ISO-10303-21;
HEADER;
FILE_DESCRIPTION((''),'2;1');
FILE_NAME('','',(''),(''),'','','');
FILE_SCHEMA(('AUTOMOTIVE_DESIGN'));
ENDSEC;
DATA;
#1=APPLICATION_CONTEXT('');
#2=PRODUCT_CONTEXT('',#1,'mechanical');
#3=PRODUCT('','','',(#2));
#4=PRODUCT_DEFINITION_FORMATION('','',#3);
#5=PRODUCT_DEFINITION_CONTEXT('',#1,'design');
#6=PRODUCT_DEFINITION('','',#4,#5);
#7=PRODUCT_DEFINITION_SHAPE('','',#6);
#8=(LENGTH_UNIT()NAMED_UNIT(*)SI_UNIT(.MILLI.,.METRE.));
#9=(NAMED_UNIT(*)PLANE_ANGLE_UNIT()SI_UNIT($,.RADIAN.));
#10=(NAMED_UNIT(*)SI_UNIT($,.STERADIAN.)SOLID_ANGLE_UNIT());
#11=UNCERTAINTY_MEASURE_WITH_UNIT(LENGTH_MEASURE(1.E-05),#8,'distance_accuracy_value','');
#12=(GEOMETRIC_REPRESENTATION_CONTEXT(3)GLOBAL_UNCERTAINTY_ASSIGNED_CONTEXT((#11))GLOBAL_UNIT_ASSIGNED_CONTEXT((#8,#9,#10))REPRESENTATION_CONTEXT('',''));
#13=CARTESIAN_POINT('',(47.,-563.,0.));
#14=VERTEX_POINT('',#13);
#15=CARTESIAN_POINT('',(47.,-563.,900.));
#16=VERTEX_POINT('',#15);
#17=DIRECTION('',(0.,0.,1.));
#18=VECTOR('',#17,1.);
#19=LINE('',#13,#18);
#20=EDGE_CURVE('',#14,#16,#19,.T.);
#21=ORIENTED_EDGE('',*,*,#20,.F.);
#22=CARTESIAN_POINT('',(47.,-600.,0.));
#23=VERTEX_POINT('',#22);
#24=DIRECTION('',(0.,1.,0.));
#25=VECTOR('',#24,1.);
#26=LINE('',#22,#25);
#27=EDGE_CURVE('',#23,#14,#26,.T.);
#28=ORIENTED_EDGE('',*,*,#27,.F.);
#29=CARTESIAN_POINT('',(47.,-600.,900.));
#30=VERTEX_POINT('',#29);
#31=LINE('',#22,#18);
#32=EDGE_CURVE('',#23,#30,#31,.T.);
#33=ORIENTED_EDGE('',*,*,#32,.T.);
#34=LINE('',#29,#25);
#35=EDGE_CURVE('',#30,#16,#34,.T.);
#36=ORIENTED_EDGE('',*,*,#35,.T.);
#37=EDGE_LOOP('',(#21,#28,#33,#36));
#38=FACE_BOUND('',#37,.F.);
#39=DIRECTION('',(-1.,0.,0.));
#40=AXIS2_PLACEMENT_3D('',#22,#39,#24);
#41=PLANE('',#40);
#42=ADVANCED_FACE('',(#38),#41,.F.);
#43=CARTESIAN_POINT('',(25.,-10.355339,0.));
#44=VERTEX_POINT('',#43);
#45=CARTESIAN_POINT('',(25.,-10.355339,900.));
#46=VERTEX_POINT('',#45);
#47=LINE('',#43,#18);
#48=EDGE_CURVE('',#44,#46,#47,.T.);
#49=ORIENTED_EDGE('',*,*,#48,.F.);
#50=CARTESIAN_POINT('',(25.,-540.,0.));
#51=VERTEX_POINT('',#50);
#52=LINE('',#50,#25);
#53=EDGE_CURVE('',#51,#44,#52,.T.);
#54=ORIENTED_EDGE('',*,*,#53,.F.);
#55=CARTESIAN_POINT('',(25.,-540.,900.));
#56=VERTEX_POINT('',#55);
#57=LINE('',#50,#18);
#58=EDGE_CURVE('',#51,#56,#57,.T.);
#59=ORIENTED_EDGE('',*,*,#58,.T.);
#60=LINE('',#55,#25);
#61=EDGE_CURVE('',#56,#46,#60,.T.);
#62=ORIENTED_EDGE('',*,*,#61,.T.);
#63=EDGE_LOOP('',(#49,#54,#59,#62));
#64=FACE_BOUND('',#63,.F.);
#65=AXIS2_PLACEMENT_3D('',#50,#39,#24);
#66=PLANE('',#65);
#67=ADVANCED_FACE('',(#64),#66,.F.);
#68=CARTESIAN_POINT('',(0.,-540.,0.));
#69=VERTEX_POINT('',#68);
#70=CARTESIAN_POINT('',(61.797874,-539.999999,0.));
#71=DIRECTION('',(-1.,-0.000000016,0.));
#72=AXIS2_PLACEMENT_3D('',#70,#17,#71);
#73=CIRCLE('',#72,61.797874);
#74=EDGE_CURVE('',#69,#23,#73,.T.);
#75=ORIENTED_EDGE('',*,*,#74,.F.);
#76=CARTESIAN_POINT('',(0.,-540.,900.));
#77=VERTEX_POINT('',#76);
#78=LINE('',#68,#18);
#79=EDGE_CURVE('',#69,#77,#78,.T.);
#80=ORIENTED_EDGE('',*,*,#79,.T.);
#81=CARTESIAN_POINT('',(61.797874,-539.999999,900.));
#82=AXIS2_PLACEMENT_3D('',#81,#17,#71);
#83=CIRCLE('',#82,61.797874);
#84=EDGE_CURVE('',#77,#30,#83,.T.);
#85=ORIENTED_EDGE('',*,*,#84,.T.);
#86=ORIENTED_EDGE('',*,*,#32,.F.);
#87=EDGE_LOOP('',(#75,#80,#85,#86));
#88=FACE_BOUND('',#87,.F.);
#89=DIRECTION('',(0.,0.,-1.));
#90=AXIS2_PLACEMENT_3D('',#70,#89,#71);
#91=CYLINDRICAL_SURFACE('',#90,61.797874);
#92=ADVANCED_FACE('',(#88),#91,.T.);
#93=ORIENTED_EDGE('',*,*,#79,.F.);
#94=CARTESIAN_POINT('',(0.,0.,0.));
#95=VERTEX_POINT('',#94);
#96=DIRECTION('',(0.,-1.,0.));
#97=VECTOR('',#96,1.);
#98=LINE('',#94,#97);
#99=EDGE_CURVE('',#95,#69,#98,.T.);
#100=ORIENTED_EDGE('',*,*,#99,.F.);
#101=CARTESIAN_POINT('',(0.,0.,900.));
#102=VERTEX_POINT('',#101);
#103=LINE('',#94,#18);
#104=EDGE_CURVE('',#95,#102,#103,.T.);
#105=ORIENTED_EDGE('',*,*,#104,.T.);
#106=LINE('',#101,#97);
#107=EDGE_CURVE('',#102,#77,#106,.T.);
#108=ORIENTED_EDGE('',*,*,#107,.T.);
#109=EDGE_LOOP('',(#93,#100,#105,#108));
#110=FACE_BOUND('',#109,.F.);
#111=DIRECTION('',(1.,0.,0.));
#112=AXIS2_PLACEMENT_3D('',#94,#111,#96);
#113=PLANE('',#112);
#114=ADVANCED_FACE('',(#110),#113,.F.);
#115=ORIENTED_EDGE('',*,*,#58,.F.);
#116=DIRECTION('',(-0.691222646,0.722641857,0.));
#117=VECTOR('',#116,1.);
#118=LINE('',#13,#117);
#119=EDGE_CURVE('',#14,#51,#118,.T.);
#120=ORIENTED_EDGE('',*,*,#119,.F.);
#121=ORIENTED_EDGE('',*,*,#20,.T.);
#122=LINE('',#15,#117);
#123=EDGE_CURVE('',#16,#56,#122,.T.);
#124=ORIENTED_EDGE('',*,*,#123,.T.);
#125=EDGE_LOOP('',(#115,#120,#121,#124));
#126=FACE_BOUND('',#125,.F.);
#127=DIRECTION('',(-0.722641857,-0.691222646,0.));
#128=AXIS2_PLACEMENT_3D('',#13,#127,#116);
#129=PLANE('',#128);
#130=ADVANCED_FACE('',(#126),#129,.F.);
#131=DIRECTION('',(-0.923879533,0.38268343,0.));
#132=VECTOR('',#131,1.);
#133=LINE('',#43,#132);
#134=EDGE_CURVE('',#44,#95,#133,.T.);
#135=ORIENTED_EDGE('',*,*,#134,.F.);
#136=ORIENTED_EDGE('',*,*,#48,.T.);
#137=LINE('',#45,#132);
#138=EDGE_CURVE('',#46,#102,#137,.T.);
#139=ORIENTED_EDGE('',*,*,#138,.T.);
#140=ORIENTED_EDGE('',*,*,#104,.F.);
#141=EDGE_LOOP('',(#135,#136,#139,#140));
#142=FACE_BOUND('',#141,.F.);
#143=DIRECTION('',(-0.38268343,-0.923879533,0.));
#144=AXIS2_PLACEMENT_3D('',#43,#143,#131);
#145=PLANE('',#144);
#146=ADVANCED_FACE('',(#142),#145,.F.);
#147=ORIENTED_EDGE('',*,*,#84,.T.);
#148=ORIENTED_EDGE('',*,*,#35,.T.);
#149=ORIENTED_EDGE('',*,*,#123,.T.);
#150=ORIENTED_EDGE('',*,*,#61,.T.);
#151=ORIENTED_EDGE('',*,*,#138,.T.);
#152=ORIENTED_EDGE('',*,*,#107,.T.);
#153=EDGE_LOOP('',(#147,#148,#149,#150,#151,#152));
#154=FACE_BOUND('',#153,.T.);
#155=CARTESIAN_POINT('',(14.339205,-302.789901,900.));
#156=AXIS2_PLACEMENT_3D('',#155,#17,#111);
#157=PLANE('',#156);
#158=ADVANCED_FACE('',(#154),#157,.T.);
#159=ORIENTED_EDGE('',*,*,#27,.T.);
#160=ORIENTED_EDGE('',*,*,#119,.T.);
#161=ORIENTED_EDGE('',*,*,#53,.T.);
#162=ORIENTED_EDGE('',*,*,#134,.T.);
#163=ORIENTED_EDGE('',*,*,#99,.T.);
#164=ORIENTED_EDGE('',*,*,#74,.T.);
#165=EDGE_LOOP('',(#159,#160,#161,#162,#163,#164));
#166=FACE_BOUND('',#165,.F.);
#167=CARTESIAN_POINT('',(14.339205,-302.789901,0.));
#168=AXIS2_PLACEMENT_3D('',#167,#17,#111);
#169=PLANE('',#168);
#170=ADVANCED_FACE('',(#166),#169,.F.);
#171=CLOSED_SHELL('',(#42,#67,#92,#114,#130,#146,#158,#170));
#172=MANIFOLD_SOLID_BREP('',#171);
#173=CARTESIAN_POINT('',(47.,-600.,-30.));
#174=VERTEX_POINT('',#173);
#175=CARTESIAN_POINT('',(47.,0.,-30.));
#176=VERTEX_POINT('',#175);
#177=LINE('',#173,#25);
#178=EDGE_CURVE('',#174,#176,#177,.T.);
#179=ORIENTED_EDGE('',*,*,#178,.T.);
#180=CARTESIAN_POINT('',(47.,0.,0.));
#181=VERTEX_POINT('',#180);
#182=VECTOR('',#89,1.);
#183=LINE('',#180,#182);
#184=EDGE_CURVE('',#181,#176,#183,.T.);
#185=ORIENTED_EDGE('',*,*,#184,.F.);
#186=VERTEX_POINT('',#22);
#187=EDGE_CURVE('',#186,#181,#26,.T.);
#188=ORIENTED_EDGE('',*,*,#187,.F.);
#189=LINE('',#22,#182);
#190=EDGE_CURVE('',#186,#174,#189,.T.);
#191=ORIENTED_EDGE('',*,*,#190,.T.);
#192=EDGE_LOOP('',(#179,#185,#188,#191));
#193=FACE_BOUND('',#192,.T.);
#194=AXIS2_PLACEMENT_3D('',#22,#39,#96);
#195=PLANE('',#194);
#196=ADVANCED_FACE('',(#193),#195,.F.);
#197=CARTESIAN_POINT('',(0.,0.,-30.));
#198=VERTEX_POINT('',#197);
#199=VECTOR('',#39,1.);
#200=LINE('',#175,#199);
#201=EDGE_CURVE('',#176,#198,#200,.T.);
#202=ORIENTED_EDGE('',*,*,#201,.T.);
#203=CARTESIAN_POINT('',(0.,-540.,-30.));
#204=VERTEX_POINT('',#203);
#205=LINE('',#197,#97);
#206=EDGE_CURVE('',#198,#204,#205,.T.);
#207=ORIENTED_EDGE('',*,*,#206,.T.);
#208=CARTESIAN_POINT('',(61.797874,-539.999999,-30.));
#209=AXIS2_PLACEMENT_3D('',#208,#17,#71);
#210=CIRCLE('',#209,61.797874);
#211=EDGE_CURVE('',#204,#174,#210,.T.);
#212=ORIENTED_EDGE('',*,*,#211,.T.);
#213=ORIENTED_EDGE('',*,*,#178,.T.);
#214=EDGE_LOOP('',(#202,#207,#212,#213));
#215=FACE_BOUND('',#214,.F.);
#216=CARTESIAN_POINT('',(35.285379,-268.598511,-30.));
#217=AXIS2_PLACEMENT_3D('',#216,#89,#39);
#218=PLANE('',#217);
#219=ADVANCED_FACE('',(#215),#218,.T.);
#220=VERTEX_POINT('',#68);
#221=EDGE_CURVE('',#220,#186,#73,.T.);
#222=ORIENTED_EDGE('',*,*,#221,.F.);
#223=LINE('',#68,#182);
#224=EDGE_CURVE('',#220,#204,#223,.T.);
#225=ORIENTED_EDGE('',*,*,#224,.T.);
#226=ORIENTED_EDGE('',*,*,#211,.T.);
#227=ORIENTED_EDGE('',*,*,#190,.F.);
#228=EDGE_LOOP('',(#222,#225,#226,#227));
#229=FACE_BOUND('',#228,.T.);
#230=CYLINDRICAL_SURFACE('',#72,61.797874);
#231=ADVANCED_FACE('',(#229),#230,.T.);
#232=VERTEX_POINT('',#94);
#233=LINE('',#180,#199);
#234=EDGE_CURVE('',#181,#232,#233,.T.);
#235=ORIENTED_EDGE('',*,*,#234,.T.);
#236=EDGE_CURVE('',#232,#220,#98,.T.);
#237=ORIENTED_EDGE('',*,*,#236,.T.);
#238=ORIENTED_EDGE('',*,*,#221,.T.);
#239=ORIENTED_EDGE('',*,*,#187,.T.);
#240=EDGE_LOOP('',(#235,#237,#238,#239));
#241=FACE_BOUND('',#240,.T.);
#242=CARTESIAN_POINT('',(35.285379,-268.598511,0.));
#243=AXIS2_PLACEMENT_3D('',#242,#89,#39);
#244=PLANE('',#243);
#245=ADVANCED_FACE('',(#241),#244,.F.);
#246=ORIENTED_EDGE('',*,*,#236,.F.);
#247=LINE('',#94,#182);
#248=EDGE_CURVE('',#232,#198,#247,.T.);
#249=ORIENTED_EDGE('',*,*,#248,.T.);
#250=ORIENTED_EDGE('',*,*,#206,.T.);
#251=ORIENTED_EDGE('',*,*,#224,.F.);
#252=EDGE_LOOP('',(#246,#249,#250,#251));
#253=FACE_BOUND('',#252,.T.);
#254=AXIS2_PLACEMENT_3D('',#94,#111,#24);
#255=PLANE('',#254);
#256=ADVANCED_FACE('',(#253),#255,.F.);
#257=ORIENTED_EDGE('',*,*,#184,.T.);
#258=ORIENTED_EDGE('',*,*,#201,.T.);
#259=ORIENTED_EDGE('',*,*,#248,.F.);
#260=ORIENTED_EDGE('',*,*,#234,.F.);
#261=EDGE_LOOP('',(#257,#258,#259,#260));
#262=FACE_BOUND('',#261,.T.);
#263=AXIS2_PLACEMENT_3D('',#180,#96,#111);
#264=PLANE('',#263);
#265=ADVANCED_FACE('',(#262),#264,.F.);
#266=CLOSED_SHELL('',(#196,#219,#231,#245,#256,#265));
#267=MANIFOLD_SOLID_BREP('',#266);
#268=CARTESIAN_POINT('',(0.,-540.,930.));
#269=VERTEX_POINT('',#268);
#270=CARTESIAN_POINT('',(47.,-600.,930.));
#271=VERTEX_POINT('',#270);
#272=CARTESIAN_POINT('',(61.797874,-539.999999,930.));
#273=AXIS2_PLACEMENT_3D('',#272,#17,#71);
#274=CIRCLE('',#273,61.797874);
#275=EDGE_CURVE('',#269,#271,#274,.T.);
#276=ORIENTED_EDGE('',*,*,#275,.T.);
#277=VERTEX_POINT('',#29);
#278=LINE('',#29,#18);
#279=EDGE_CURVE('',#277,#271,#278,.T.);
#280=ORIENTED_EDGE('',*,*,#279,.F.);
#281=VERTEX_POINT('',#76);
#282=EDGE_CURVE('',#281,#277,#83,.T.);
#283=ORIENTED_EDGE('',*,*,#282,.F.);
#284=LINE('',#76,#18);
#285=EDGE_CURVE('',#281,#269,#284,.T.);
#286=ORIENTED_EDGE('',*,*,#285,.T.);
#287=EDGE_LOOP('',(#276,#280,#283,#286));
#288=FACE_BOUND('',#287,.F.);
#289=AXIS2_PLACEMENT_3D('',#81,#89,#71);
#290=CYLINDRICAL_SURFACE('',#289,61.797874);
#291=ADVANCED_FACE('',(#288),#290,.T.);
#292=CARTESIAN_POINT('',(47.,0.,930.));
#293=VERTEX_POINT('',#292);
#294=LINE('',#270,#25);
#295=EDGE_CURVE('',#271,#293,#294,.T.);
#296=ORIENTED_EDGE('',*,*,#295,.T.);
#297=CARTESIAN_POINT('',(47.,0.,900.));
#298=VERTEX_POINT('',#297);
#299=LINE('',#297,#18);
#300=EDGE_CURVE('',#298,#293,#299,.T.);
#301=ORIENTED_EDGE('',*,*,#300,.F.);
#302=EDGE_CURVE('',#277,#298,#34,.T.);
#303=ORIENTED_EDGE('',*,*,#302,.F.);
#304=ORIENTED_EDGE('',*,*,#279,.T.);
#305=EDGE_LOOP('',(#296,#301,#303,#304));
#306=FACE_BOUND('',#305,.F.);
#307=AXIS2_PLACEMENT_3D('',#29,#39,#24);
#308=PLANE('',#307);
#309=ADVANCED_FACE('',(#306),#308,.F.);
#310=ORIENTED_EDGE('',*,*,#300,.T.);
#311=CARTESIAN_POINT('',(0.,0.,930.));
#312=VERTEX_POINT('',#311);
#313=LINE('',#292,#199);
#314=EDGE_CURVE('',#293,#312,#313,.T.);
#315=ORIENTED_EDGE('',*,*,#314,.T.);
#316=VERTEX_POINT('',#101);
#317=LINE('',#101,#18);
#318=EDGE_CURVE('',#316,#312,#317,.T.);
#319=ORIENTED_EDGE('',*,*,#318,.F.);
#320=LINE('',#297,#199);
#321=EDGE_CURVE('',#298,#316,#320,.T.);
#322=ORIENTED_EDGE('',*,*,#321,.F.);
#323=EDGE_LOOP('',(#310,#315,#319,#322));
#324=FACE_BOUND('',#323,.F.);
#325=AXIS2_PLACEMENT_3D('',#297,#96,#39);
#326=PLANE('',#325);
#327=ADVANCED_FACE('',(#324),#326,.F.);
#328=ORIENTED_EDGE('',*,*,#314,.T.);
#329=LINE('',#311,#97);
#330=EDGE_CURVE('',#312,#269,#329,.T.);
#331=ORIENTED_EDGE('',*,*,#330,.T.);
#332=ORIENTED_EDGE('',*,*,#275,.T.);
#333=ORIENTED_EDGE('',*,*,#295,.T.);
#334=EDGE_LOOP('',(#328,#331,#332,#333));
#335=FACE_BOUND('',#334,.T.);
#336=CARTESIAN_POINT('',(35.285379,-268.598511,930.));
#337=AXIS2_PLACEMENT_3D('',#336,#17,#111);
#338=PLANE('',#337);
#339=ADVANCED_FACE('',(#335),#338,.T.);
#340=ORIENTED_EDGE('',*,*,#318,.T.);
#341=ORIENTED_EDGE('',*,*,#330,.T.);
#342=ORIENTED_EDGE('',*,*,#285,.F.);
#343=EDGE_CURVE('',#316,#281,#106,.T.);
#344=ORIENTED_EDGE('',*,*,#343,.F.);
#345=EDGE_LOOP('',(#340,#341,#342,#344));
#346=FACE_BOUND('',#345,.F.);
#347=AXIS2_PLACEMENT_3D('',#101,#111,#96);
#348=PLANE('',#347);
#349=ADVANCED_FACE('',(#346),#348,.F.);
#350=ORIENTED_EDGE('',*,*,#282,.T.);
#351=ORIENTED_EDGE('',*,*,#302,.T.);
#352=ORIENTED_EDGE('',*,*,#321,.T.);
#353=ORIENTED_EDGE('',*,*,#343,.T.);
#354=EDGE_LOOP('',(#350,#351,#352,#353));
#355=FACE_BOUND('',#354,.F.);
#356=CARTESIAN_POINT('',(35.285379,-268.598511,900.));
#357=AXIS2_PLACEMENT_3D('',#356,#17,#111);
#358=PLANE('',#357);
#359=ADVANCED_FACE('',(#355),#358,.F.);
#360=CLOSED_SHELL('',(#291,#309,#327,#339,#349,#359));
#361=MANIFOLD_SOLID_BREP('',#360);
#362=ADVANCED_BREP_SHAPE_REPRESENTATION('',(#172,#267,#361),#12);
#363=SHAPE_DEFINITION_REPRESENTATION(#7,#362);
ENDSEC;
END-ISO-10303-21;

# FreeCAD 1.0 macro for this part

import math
import FreeCAD as App
import Part
import Sketcher
from FreeCAD import Vector
Q = App.Units.Quantity

doc = App.newDocument("Part")
body = doc.addObject("PartDesign::Body", "Body")

sketch1 = body.newObject("Sketcher::SketchObject", "Sketch")
sketch1.AttachmentSupport = (doc.getObject("XY_Plane"), [""])
sketch1.MapMode = "FlatFace"
sketch1.addGeometry(Part.LineSegment(Vector(25, -540, 0), Vector(25, -10, 0)), False)
sketch1.addGeometry(Part.LineSegment(Vector(25, -10, 0), Vector(0, 0, 0)), False)
sketch1.addGeometry(Part.LineSegment(Vector(0, 0, 0), Vector(0, -540, 0)), False)
sketch1.addGeometry(Part.ArcOfCircle(Part.Circle(Vector(62, -540, 0), Vector(0, 0, 1), 62), math.radians(-180), math.radians(-104)), False)
sketch1.addGeometry(Part.LineSegment(Vector(47, -600, 0), Vector(47, -563, 0)), False)
sketch1.addGeometry(Part.LineSegment(Vector(47, -563, 0), Vector(25, -540, 0)), False)
sketch1.addConstraint(Sketcher.Constraint("Coincident", 0, 2, 1, 1))
sketch1.addConstraint(Sketcher.Constraint("Coincident", 1, 2, 2, 1))
sketch1.addConstraint(Sketcher.Constraint("Tangent", 2, 2, 3, 1))
sketch1.addConstraint(Sketcher.Constraint("Coincident", 3, 2, 4, 1))
sketch1.addConstraint(Sketcher.Constraint("Coincident", 4, 2, 5, 1))
sketch1.addConstraint(Sketcher.Constraint("Coincident", 5, 2, 0, 1))
sketch1.addConstraint(Sketcher.Constraint("Vertical", 0))
sketch1.addConstraint(Sketcher.Constraint("Vertical", 2))
sketch1.addConstraint(Sketcher.Constraint("Vertical", 4))
sketch1.addConstraint(Sketcher.Constraint("Coincident", 1, 2, -1, 1))
sketch1.addConstraint(Sketcher.Constraint("Horizontal", 2, 2, 5, 2))
sketch1.addConstraint(Sketcher.Constraint("DistanceY", 2, 2, 2, 1, Q("540 mm")))
sketch1.addConstraint(Sketcher.Constraint("DistanceY", 4, 1, 4, 2, Q("37 mm")))
sketch1.addConstraint(Sketcher.Constraint("DistanceX", -1, 1, 0, 2, Q("25 mm")))
sketch1.addConstraint(Sketcher.Constraint("DistanceX", -1, 1, 3, 2, Q("47 mm")))
sketch1.addConstraint(Sketcher.Constraint("DistanceY", 3, 2, -1, 1, Q("600 mm")))
sketch1.addConstraint(Sketcher.Constraint("Angle", 1, Q("157.5 deg")))
pad1 = body.newObject("PartDesign::Pad", "Pad")
pad1.Profile = sketch1
pad1.Length = 900
body2 = doc.addObject("PartDesign::Body", "Body001")

sketch2 = body2.newObject("Sketcher::SketchObject", "Sketch001")
sketch2.AttachmentSupport = (doc.getObject("XY_Plane001"), [""])
sketch2.MapMode = "FlatFace"
sketch2.AttachmentOffset = App.Placement(Vector(0, 0, 900), App.Rotation())
sketch2.addGeometry(Part.LineSegment(Vector(47, 0, 0), Vector(0, 0, 0)), False)
sketch2.addGeometry(Part.LineSegment(Vector(0, 0, 0), Vector(0, -540, 0)), False)
sketch2.addGeometry(Part.ArcOfCircle(Part.Circle(Vector(62, -540, 0), Vector(0, 0, 1), 62), math.radians(-180), math.radians(-104)), False)
sketch2.addGeometry(Part.LineSegment(Vector(47, -600, 0), Vector(47, 0, 0)), False)
sketch2.addConstraint(Sketcher.Constraint("Coincident", 0, 2, 1, 1))
sketch2.addConstraint(Sketcher.Constraint("Tangent", 1, 2, 2, 1))
sketch2.addConstraint(Sketcher.Constraint("Coincident", 2, 2, 3, 1))
sketch2.addConstraint(Sketcher.Constraint("Coincident", 3, 2, 0, 1))
sketch2.addConstraint(Sketcher.Constraint("Horizontal", 0))
sketch2.addConstraint(Sketcher.Constraint("Vertical", 1))
sketch2.addConstraint(Sketcher.Constraint("Vertical", 3))
sketch2.addConstraint(Sketcher.Constraint("Coincident", 0, 2, -1, 1))
sketch2.addConstraint(Sketcher.Constraint("DistanceX", 0, 2, 0, 1, Q("47 mm")))
sketch2.addConstraint(Sketcher.Constraint("DistanceY", 1, 2, 1, 1, Q("540 mm")))
sketch2.addConstraint(Sketcher.Constraint("DistanceY", 3, 1, 3, 2, Q("600 mm")))
pad2 = body2.newObject("PartDesign::Pad", "Pad001")
pad2.Profile = sketch2
pad2.Length = 30
body3 = doc.addObject("PartDesign::Body", "Body002")
doc.recompute()

mirroring = doc.addObject("Part::Mirroring", "Mirroring")
mirroring.Source = body2
mirroring.Base = Vector(14.064969, -308.163629, 450)
mirroring.Normal = Vector(0, 0, 1)
body3.BaseFeature = mirroring
doc.recompute()
mirroring.Visibility = False

doc.recompute()
